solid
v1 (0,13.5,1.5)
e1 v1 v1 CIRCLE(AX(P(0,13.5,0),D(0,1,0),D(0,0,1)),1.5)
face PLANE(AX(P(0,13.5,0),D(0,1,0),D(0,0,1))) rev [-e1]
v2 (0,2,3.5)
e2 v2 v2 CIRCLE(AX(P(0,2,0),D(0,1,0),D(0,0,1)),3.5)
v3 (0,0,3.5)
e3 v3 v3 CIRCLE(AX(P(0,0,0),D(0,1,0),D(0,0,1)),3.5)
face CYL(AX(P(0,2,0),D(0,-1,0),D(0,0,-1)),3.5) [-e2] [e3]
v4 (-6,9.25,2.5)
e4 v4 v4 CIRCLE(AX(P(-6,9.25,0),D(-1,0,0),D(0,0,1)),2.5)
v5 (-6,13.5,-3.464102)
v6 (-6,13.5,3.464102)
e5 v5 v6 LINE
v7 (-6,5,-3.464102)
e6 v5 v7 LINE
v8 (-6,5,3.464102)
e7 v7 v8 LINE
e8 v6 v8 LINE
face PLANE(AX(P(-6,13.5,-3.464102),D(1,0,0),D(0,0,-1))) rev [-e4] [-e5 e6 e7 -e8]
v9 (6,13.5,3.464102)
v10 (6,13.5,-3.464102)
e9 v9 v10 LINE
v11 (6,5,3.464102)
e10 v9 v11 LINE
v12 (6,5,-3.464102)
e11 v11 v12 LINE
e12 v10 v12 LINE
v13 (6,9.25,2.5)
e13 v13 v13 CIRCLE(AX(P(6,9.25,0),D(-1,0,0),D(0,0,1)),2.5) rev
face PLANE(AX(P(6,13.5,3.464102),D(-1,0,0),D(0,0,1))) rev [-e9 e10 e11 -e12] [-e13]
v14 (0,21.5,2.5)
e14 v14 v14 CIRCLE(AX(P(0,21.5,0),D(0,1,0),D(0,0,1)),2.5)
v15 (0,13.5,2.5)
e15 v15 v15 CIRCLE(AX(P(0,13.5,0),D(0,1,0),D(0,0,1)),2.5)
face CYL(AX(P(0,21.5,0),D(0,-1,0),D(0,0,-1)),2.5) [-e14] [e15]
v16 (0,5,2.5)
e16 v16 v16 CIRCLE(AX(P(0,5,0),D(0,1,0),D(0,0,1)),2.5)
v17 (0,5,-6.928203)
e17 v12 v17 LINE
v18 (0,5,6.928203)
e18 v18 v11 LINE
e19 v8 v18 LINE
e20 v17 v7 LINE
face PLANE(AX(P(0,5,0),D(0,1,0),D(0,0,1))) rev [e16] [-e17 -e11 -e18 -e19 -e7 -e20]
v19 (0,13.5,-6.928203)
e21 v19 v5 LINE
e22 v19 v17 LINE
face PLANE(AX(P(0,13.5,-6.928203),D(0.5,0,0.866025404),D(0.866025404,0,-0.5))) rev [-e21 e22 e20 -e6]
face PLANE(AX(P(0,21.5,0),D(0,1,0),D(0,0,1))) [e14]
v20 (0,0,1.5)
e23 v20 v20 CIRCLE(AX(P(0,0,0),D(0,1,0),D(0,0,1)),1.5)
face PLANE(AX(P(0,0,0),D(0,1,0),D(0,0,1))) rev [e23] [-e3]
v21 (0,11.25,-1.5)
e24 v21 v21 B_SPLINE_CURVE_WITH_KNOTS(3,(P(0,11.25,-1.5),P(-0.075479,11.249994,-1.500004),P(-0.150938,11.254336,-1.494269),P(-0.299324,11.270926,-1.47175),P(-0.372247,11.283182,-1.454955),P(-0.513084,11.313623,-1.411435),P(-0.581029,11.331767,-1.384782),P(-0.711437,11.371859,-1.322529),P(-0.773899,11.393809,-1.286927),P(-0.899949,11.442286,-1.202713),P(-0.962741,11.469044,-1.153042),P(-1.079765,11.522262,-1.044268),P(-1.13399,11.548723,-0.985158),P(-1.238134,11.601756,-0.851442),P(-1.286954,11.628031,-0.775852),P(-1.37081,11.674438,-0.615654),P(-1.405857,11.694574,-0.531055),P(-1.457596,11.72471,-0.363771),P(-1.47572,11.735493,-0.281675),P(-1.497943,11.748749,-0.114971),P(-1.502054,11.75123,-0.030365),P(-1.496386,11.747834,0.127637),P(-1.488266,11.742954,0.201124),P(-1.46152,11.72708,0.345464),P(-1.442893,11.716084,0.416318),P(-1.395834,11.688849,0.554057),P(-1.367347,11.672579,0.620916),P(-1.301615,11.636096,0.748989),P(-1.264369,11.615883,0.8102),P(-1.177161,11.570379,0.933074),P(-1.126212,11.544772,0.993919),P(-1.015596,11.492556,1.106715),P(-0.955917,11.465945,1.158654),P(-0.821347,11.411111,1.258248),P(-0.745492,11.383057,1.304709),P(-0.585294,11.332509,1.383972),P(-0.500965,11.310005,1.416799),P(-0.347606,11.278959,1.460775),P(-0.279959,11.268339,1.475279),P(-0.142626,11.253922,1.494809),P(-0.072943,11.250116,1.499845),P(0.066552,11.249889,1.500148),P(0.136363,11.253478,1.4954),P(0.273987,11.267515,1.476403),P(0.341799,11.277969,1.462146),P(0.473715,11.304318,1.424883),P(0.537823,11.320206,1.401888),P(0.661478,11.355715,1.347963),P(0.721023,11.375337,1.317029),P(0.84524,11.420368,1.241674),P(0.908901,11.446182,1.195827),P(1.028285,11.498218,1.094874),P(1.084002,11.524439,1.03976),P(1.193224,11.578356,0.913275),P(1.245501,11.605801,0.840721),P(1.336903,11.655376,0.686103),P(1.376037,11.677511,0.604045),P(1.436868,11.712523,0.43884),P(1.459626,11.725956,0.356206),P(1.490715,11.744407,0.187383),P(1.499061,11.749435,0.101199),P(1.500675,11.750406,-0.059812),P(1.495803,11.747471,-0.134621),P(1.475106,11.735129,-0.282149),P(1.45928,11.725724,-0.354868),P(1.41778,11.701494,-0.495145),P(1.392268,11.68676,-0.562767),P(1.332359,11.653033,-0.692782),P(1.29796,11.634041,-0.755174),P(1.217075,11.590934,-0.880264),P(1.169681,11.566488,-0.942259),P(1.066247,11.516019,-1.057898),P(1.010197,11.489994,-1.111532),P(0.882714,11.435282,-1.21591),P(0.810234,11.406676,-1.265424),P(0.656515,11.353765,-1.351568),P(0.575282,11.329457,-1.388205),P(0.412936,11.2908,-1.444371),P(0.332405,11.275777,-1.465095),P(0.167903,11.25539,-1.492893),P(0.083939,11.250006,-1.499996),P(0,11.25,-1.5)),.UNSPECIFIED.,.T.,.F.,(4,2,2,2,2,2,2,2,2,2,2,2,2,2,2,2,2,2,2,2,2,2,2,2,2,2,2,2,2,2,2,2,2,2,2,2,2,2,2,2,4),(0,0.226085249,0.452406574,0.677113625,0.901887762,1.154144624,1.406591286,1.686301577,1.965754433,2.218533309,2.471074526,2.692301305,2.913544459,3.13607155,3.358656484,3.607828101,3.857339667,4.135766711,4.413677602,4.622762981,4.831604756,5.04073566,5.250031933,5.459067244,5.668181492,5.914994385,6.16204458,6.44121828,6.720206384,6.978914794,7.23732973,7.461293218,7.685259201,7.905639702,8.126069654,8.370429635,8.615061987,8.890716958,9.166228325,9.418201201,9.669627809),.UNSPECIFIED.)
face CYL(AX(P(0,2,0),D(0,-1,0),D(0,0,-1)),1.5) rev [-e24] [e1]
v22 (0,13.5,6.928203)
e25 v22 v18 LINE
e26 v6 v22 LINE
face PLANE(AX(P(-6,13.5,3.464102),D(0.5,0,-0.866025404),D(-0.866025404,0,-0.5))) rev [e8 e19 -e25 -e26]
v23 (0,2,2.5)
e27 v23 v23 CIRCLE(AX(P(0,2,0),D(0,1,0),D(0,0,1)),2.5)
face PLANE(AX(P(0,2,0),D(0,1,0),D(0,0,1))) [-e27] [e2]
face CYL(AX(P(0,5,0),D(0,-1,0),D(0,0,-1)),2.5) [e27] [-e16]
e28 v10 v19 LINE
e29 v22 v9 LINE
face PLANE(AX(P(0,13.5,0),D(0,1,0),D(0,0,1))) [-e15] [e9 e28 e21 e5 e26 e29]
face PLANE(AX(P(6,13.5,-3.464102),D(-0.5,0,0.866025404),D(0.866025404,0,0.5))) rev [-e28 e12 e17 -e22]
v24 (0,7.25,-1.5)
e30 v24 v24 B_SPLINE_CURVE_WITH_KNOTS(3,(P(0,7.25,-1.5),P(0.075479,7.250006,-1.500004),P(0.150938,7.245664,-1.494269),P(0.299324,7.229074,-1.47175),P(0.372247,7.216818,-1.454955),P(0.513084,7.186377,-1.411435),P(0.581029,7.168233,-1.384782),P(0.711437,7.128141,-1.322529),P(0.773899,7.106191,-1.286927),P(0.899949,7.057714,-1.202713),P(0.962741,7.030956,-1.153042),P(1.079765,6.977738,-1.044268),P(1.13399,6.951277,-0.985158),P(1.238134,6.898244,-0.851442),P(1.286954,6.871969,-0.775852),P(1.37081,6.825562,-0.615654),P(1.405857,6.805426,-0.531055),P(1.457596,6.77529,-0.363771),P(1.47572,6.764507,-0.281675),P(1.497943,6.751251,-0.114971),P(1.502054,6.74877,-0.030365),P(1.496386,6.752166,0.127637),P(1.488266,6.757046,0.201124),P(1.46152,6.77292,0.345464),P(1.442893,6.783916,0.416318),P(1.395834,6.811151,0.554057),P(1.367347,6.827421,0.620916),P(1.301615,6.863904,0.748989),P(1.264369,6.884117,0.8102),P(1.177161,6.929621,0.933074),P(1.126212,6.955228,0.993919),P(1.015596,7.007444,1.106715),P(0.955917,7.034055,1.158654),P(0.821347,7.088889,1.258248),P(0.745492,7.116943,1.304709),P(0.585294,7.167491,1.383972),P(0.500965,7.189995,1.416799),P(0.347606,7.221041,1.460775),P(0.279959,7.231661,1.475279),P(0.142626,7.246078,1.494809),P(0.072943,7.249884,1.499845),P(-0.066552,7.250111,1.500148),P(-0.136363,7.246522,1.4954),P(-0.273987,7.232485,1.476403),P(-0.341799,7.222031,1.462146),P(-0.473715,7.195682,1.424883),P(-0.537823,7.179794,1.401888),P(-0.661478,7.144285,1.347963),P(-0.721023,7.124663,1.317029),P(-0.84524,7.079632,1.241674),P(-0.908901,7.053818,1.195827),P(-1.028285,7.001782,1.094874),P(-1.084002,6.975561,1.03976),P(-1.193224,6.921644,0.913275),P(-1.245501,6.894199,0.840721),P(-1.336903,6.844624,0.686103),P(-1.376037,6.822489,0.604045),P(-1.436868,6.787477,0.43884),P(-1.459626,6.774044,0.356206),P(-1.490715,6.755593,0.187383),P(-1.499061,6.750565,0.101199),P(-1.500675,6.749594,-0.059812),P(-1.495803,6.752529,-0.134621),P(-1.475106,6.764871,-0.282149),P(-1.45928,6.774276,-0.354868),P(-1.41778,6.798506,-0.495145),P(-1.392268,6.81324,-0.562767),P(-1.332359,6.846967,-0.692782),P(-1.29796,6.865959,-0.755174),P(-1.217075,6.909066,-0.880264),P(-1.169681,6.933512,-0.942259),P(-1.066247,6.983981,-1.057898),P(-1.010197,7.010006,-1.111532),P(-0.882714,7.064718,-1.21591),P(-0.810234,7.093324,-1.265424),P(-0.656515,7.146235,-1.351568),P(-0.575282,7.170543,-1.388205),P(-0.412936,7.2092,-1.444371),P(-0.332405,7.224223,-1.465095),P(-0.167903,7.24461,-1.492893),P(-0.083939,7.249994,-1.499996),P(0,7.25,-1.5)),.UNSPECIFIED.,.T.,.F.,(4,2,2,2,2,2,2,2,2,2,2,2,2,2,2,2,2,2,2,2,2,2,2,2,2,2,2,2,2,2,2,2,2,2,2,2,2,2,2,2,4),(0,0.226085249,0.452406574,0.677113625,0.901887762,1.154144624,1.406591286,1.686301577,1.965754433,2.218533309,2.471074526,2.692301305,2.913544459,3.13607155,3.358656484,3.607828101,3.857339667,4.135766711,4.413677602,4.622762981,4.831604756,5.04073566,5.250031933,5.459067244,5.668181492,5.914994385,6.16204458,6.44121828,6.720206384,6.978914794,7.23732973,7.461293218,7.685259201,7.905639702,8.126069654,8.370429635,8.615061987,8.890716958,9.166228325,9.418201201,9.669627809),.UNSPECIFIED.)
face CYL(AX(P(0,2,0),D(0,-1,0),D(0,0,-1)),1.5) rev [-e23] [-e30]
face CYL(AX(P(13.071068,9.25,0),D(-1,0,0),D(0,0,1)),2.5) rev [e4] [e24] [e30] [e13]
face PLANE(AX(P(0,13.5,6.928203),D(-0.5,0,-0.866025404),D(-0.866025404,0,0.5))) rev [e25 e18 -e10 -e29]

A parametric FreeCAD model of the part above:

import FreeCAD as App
import Part
import Sketcher
Q = App.Units.Quantity

doc = App.newDocument("Part")
body = doc.addObject("PartDesign::Body", "Body")

sketch1 = body.newObject("Sketcher::SketchObject", "Sketch")
sketch1.AttachmentSupport = (doc.getObject("XZ_Plane"), [""])
sketch1.MapMode = "FlatFace"
sketch1.addGeometry([
    Part.Circle(App.Vector(0, 0, 0), App.Vector(0, 0, 1), 3.5),
    Part.Circle(App.Vector(0, 0, 0), App.Vector(0, 0, 1), 1.5),
], False)
sketch1.addConstraint([
    Sketcher.Constraint("Coincident", 0, 3, -1, 1),
    Sketcher.Constraint("Coincident", 1, 3, -1, 1),
    Sketcher.Constraint("Diameter", 0, 7.0),
    Sketcher.Constraint("Diameter", 1, 3.0),
])
pad1 = body.newObject("PartDesign::Pad", "Pad")
pad1.Profile = sketch1
pad1.Length = 2
pad1.Reversed = True

sketch2 = body.newObject("Sketcher::SketchObject", "Sketch001")
sketch2.AttachmentSupport = (doc.getObject("XZ_Plane"), [""])
sketch2.MapMode = "FlatFace"
sketch2.AttachmentOffset = App.Placement(App.Vector(0, 0, -2), App.Rotation())
sketch2.addGeometry([
    Part.Circle(App.Vector(0, 0, 0), App.Vector(0, 0, 1), 2.5),
    Part.Circle(App.Vector(0, 0, 0), App.Vector(0, 0, 1), 1.5),
], False)
sketch2.addConstraint([
    Sketcher.Constraint("Coincident", 0, 3, -1, 1),
    Sketcher.Constraint("Coincident", 1, 3, -1, 1),
    Sketcher.Constraint("Diameter", 0, 5.0),
    Sketcher.Constraint("Diameter", 1, 3.0),
])
pad2 = body.newObject("PartDesign::Pad", "Pad001")
pad2.Profile = sketch2
pad2.Length = 3
pad2.Reversed = True

sketch3 = body.newObject("Sketcher::SketchObject", "Sketch002")
sketch3.AttachmentSupport = (doc.getObject("XZ_Plane"), [""])
sketch3.MapMode = "FlatFace"
sketch3.AttachmentOffset = App.Placement(App.Vector(0, 0, -5), App.Rotation())
sketch3.addGeometry([
    Part.LineSegment(App.Vector(-6, -3.464102, 0), App.Vector(-6, 3.464102, 0)),
    Part.LineSegment(App.Vector(-6, 3.464102, 0), App.Vector(0, 6.928203, 0)),
    Part.LineSegment(App.Vector(0, 6.928203, 0), App.Vector(6, 3.464102, 0)),
    Part.LineSegment(App.Vector(6, 3.464102, 0), App.Vector(6, -3.464102, 0)),
    Part.LineSegment(App.Vector(6, -3.464102, 0), App.Vector(0, -6.928203, 0)),
    Part.LineSegment(App.Vector(0, -6.928203, 0), App.Vector(-6, -3.464102, 0)),
    Part.Circle(App.Vector(0, 0, 0), App.Vector(0, 0, 1), 1.5),
], False)
sketch3.addConstraint([
    Sketcher.Constraint("Coincident", 0, 2, 1, 1),
    Sketcher.Constraint("Coincident", 1, 2, 2, 1),
    Sketcher.Constraint("Coincident", 2, 2, 3, 1),
    Sketcher.Constraint("Coincident", 3, 2, 4, 1),
    Sketcher.Constraint("Coincident", 4, 2, 5, 1),
    Sketcher.Constraint("Coincident", 5, 2, 0, 1),
    Sketcher.Constraint("Vertical", 0),
    Sketcher.Constraint("Vertical", 3),
    Sketcher.Constraint("Coincident", 6, 3, -1, 1),
    Sketcher.Constraint("Symmetric", 0, 2, 3, 2, -1, 1),
    Sketcher.Constraint("Symmetric", 1, 2, 4, 2, -1, 1),
    Sketcher.Constraint("PointOnObject", 1, 2, -2),
    Sketcher.Constraint("Parallel", 2, 5),
    Sketcher.Constraint("Horizontal", 0, 2, 2, 2),
    Sketcher.Constraint("Diameter", 6, 3.0),
    Sketcher.Constraint("Angle", 1, Q("30 deg")),
    Sketcher.Constraint("DistanceX", 0, 2, -1, 1, 6.0),
    Sketcher.Constraint("DistanceY", -1, 1, 0, 2, 3.464102),
])
pad3 = body.newObject("PartDesign::Pad", "Pad002")
pad3.Profile = sketch3
pad3.Length = 8.5
pad3.Reversed = True

sketch4 = body.newObject("Sketcher::SketchObject", "Sketch003")
sketch4.AttachmentSupport = (doc.getObject("XZ_Plane"), [""])
sketch4.MapMode = "FlatFace"
sketch4.AttachmentOffset = App.Placement(App.Vector(0, 0, -13.5), App.Rotation())
sketch4.addGeometry(Part.Circle(App.Vector(0, 0, 0), App.Vector(0, 0, 1), 2.5), False)
sketch4.addConstraint([
    Sketcher.Constraint("Coincident", 0, 3, -1, 1),
    Sketcher.Constraint("Diameter", 0, 5.0),
])
pad4 = body.newObject("PartDesign::Pad", "Pad003")
pad4.Profile = sketch4
pad4.Length = 8
pad4.Reversed = True

sketch5 = body.newObject("Sketcher::SketchObject", "Sketch004")
sketch5.AttachmentSupport = (doc.getObject("YZ_Plane"), [""])
sketch5.MapMode = "FlatFace"
sketch5.AttachmentOffset = App.Placement(App.Vector(0, 0, -6), App.Rotation())
sketch5.addGeometry(Part.Circle(App.Vector(9.25, 0, 0), App.Vector(0, 0, 1), 2.5), False)
sketch5.addConstraint([
    Sketcher.Constraint("PointOnObject", 0, 3, -1),
    Sketcher.Constraint("Diameter", 0, 5.0),
    Sketcher.Constraint("DistanceX", -1, 1, 0, 3, 9.25),
])
pocket1 = body.newObject("PartDesign::Pocket", "Pocket")
pocket1.Profile = sketch5
pocket1.Length = 12
pocket1.Reversed = True

doc.recompute()
